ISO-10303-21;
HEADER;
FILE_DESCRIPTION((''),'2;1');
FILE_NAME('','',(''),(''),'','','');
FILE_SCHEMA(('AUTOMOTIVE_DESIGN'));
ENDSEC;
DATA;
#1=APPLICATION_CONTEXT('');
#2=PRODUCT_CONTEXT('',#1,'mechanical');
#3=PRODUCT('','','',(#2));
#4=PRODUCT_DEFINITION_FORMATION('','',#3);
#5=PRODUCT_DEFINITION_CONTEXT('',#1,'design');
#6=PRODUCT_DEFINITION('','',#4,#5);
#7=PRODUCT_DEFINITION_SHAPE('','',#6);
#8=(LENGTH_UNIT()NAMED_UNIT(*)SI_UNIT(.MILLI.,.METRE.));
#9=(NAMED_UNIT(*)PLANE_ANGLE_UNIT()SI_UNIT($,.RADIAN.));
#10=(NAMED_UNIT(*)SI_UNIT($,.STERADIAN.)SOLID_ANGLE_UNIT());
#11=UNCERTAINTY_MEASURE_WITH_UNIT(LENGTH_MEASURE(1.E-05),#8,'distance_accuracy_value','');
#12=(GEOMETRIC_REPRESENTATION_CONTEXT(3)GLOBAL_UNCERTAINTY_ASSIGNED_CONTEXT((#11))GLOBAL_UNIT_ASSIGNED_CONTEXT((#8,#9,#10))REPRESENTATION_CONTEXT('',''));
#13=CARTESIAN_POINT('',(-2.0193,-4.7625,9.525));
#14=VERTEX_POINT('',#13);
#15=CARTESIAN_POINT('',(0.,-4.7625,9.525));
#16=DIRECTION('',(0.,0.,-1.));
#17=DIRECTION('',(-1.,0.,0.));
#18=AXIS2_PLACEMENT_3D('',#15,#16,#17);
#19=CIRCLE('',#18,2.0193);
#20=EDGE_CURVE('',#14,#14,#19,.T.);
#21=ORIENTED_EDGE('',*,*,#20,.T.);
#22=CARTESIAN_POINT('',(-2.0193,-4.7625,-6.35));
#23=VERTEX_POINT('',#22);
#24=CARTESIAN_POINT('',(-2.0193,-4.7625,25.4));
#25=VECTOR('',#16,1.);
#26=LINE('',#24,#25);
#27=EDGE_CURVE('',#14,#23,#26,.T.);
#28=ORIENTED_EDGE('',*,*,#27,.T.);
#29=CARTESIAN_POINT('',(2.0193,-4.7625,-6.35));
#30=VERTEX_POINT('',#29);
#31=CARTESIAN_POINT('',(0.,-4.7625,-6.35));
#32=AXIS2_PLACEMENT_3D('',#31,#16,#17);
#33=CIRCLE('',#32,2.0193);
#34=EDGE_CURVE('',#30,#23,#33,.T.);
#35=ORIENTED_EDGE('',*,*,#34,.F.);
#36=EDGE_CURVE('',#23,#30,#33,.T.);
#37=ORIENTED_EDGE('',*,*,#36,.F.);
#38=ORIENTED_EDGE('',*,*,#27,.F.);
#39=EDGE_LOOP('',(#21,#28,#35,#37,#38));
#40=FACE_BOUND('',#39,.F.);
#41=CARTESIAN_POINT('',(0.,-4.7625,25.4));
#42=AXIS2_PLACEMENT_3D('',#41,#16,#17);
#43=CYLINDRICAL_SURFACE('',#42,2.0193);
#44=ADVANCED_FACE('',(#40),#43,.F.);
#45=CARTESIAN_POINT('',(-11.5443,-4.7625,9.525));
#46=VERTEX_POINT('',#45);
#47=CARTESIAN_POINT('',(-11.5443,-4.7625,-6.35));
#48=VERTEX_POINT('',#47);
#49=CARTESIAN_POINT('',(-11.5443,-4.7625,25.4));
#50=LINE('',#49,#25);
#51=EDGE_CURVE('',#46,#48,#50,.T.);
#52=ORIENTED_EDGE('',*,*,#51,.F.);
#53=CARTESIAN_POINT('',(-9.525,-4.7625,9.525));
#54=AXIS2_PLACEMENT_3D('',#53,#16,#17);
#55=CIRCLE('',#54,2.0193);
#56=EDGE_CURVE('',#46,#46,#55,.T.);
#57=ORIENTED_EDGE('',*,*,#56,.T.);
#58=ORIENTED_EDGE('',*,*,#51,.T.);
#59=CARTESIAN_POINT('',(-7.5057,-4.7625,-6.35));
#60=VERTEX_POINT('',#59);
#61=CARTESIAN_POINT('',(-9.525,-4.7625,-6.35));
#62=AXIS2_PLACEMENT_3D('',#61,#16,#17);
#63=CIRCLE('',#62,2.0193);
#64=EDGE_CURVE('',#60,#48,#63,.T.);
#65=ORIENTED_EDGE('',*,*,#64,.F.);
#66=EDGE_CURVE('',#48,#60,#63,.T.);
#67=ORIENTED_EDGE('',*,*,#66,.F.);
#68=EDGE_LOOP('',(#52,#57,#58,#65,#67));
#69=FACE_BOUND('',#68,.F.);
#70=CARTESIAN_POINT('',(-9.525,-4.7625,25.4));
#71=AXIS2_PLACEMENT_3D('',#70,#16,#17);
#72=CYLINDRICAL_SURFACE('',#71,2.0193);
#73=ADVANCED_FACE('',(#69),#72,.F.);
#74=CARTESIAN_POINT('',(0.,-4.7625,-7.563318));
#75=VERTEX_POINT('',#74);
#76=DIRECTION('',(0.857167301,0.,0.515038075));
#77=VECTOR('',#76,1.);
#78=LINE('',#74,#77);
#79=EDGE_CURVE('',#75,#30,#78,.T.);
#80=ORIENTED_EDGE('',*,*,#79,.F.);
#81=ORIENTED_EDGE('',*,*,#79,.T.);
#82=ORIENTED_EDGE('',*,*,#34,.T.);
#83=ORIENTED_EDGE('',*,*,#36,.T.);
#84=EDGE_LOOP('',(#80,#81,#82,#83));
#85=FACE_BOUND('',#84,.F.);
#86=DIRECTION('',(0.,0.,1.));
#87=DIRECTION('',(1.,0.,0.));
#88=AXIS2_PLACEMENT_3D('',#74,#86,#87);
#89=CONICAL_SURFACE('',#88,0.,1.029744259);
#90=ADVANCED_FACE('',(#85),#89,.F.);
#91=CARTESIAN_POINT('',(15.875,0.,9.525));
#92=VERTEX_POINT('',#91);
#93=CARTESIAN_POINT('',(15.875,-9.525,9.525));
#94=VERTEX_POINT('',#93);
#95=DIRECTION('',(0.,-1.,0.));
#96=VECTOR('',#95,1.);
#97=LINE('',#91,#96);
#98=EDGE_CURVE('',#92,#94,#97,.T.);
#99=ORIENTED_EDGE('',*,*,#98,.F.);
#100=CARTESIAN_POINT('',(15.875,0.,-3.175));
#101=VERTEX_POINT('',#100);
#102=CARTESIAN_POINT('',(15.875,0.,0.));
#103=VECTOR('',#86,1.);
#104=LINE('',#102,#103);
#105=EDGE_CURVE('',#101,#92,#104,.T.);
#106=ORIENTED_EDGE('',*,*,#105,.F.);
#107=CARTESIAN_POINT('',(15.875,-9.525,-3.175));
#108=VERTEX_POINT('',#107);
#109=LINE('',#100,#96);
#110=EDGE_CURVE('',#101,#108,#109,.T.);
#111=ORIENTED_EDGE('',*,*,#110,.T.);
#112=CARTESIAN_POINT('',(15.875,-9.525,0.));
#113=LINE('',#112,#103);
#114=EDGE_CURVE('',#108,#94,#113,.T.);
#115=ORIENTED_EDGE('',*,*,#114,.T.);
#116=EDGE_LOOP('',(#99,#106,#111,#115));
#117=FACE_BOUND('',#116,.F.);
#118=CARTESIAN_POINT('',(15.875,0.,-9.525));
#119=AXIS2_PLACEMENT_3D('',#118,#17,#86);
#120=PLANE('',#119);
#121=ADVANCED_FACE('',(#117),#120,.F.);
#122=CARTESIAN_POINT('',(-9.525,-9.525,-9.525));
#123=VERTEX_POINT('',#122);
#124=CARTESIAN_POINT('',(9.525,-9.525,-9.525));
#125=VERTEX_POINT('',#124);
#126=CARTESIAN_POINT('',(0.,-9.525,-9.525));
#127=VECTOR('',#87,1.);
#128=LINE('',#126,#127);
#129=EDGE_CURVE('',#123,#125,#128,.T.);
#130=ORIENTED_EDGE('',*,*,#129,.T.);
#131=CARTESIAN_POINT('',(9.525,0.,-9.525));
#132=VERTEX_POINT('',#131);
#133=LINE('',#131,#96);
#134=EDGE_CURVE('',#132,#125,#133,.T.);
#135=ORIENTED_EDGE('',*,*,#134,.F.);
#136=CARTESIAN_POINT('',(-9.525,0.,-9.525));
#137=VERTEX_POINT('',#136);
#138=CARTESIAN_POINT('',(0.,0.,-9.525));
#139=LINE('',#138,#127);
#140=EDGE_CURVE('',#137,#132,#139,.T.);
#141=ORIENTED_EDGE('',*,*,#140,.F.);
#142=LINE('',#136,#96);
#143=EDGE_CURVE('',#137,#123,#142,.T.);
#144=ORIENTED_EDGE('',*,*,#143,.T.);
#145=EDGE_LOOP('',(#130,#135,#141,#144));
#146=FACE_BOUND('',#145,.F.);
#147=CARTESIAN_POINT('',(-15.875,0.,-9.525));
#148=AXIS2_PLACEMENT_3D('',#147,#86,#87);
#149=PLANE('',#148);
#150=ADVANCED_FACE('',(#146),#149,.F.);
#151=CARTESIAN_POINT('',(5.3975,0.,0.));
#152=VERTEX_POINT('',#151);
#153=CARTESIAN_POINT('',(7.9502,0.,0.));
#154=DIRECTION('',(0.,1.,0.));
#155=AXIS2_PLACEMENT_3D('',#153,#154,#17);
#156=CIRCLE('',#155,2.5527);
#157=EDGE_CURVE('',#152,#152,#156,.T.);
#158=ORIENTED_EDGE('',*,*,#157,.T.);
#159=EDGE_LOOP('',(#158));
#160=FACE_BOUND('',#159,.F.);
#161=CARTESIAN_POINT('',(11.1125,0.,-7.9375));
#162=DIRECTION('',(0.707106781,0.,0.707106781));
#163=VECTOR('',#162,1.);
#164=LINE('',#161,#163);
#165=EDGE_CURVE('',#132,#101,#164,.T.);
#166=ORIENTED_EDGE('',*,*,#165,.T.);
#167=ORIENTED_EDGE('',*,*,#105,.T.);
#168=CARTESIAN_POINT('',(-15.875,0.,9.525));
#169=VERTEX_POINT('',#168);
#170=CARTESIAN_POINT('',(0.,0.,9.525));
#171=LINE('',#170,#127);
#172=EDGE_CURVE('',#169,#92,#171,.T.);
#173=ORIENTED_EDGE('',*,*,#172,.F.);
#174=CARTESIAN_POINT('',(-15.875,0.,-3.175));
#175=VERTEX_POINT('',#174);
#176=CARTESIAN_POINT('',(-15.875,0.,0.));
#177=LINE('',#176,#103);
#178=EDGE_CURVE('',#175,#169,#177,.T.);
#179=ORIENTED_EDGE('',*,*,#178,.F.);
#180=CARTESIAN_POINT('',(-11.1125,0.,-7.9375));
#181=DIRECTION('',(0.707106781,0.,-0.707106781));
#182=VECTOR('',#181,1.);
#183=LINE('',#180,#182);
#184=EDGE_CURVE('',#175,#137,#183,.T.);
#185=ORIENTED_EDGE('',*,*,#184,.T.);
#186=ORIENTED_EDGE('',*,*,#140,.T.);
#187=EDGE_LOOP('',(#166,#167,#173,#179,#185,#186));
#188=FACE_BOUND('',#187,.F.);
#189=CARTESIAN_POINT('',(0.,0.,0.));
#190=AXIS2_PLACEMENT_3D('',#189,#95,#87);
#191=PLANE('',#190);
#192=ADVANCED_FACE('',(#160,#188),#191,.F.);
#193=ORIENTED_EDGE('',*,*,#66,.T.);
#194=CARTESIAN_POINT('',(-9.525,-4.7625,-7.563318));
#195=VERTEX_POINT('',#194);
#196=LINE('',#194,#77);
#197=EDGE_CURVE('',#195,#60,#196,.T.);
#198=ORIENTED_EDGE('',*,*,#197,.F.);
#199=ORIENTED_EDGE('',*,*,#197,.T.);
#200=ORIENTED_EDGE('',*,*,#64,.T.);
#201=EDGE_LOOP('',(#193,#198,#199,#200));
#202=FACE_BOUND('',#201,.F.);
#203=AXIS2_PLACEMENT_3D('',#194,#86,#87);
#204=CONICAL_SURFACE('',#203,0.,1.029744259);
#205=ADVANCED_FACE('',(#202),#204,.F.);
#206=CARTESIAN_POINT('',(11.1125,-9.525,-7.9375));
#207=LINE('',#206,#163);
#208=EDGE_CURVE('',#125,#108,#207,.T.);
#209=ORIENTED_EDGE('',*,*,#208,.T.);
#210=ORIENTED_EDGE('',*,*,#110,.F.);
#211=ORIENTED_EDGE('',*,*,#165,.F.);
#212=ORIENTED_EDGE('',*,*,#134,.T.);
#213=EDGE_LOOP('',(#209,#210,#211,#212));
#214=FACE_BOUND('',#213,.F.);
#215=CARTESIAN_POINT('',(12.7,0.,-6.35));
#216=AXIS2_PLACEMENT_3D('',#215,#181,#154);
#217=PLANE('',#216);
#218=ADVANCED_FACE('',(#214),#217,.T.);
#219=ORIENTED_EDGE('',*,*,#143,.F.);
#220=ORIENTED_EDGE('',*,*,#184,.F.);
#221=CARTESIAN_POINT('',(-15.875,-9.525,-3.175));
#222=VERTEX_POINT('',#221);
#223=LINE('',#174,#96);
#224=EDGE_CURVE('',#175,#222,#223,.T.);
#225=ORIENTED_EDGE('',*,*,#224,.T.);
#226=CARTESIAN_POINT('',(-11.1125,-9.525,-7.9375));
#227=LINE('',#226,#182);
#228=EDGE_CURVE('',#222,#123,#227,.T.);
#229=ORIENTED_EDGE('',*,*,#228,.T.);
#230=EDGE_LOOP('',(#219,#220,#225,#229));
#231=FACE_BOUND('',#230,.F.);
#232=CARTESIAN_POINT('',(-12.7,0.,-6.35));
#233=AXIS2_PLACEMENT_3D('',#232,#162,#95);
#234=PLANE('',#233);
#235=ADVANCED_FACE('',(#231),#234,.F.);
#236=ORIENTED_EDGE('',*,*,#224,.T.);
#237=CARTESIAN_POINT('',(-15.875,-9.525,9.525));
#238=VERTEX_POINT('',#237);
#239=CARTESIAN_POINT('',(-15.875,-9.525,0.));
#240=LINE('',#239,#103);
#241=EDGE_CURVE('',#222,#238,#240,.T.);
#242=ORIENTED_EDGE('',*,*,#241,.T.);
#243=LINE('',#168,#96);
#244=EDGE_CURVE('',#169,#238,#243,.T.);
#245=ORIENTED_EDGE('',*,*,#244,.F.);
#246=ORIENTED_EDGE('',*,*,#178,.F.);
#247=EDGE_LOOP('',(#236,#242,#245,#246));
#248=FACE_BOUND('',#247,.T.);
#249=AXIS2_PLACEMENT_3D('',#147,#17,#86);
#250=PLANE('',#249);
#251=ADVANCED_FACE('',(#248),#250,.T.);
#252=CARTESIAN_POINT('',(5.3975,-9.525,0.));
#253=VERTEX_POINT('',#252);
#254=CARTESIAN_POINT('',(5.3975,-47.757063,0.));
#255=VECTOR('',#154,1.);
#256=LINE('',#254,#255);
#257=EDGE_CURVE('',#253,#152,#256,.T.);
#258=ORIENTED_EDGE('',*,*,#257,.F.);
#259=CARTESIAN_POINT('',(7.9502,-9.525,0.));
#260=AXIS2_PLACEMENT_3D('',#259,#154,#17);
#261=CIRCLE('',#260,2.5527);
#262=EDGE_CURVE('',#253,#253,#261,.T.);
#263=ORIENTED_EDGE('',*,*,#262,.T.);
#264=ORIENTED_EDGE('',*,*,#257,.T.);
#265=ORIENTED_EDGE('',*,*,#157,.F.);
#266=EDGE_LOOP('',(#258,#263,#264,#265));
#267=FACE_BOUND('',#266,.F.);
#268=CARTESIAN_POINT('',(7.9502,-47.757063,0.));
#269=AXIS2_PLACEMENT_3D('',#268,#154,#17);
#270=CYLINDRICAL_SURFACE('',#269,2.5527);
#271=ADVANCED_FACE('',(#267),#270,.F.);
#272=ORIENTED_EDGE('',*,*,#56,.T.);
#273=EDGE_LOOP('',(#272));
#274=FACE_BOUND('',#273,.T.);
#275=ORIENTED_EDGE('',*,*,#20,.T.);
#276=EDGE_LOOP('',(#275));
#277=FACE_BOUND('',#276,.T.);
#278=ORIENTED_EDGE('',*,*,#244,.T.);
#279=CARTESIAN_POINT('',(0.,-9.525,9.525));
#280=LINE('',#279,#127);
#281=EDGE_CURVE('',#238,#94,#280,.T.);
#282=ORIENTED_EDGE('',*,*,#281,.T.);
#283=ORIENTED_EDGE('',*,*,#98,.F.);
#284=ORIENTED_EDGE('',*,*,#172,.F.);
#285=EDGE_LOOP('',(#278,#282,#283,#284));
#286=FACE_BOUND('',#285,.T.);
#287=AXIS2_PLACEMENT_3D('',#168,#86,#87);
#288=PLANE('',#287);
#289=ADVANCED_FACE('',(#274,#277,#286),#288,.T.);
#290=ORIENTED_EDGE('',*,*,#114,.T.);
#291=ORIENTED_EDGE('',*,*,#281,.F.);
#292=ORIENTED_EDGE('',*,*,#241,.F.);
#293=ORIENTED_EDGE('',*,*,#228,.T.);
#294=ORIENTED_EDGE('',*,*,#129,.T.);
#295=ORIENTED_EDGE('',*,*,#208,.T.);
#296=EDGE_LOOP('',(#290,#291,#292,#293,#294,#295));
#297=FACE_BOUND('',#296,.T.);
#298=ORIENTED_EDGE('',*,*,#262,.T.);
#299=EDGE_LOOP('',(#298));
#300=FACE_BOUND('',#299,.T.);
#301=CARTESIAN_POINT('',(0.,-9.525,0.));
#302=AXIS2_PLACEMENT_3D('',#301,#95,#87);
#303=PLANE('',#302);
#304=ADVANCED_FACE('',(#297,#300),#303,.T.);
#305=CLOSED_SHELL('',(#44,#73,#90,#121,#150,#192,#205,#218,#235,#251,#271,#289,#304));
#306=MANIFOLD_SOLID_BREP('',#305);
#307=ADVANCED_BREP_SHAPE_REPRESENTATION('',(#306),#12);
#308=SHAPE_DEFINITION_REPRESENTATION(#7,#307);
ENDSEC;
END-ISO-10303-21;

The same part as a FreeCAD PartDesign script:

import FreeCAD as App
import Part
import Sketcher
Q = App.Units.Quantity


def edges_at(feature, points):
    """Names of the edges that pass closest to the given points."""
    edges = feature.Shape.Edges
    near = lambda p: min(range(len(edges)), key=lambda i: edges[i].distToShape(Part.Vertex(*p))[0])
    return sorted({f"Edge{near(p) + 1}" for p in points})


def add_polygon(sketch, points):
    """Adds a closed chain of lines whose ends are joined by coincident constraints."""
    first, n = sketch.GeometryCount, len(points)
    for a, b in zip(points, points[1:] + points[:1]):
        sketch.addGeometry(Part.LineSegment(App.Vector(*a, 0), App.Vector(*b, 0)), False)
    for i in range(n):
        sketch.addConstraint(Sketcher.Constraint("Coincident", first + i, 2, first + (i + 1) % n, 1))

doc = App.newDocument("Part")
body = doc.addObject("PartDesign::Body", "Body")

sketch1 = doc.addObject("Sketcher::SketchObject", "Sketch")
body.addObject(sketch1)
sketch1.AttachmentSupport = (doc.XZ_Plane, [""])
sketch1.MapMode = "FlatFace"
add_polygon(sketch1, [(-15.875, 9.525), (-15.875, -9.525), (15.875, -9.525), (15.875, 9.525)])
sketch1.addConstraint(Sketcher.Constraint("Vertical", 0))
sketch1.addConstraint(Sketcher.Constraint("Horizontal", 1))
sketch1.addConstraint(Sketcher.Constraint("Vertical", 2))
sketch1.addConstraint(Sketcher.Constraint("Horizontal", 3))
sketch1.addConstraint(Sketcher.Constraint("Symmetric", 0, 2, 2, 2, -1, 1))
sketch1.addConstraint(Sketcher.Constraint("DistanceX", 1, 1, 1, 2, Q("1.25 in")))
sketch1.addConstraint(Sketcher.Constraint("DistanceY", 0, 2, 0, 1, Q("0.75 in")))
pad1 = doc.addObject("PartDesign::Pad", "Pad")
body.addObject(pad1)
pad1.Profile = sketch1
pad1.Length = Q("0.375 in")

sketch2 = doc.addObject("Sketcher::SketchObject", "Sketch001")
body.addObject(sketch2)
sketch2.AttachmentSupport = (doc.XZ_Plane, [""])
sketch2.MapMode = "FlatFace"
sketch2.AttachmentOffset = App.Placement(App.Vector(0, 0, 0.375 * 25.4), App.Rotation())
sketch2.addGeometry(Part.Circle(App.Vector(7.9502, 0, 0), App.Vector(0, 0, 1), 2.5527), False)
sketch2.addConstraint(Sketcher.Constraint("PointOnObject", 0, 3, -1))
sketch2.addConstraint(Sketcher.Constraint("Diameter", 0, Q("0.201 in")))
sketch2.addConstraint(Sketcher.Constraint("DistanceX", -1, 1, 0, 3, Q("0.313 in")))
doc.recompute()
hole = doc.addObject("PartDesign::Hole", "Hole")
body.addObject(hole)
hole.Profile = sketch2
hole.ThreadType = "None"
hole.Diameter = Q("0.201 in")
hole.DepthType = "ThroughAll"

sketch3 = doc.addObject("Sketcher::SketchObject", "Sketch002")
body.addObject(sketch3)
sketch3.AttachmentSupport = (doc.XY_Plane, [""])
sketch3.MapMode = "FlatFace"
sketch3.AttachmentOffset = App.Placement(App.Vector(0, 0, 0.375 * 25.4), App.Rotation())
sketch3.addGeometry(Part.Circle(App.Vector(-9.525, -4.7625, 0), App.Vector(0, 0, 1), 2.0193), False)
sketch3.addGeometry(Part.Circle(App.Vector(0, -4.7625, 0), App.Vector(0, 0, 1), 2.0193), False)
sketch3.addConstraint(Sketcher.Constraint("Equal", 0, 1))
sketch3.addConstraint(Sketcher.Constraint("PointOnObject", 1, 3, -2))
sketch3.addConstraint(Sketcher.Constraint("Horizontal", 0, 3, 1, 3))
sketch3.addConstraint(Sketcher.Constraint("Diameter", 0, Q("0.159 in")))
sketch3.addConstraint(Sketcher.Constraint("DistanceX", 0, 3, -1, 1, Q("0.375 in")))
sketch3.addConstraint(Sketcher.Constraint("DistanceY", 0, 3, -1, 1, Q("0.1875 in")))
doc.recompute()
hole2 = doc.addObject("PartDesign::Hole", "Hole001")
body.addObject(hole2)
hole2.Profile = sketch3
hole2.ThreadType = "None"
hole2.Diameter = Q("0.159 in")
hole2.DepthType = "Dimension"
hole2.Depth = Q("0.625 in")
hole2.DrillPoint = "Angled"
hole2.DrillPointAngle = 118
doc.recompute()

chamfer = doc.addObject("PartDesign::Chamfer", "Chamfer")
body.addObject(chamfer)
chamfer.Base = (hole2, edges_at(hole2, [(-15.875, -4.763, -9.525), (15.875, -4.763, -9.525)]))
chamfer.Size = Q("0.25 in")

doc.recompute()
